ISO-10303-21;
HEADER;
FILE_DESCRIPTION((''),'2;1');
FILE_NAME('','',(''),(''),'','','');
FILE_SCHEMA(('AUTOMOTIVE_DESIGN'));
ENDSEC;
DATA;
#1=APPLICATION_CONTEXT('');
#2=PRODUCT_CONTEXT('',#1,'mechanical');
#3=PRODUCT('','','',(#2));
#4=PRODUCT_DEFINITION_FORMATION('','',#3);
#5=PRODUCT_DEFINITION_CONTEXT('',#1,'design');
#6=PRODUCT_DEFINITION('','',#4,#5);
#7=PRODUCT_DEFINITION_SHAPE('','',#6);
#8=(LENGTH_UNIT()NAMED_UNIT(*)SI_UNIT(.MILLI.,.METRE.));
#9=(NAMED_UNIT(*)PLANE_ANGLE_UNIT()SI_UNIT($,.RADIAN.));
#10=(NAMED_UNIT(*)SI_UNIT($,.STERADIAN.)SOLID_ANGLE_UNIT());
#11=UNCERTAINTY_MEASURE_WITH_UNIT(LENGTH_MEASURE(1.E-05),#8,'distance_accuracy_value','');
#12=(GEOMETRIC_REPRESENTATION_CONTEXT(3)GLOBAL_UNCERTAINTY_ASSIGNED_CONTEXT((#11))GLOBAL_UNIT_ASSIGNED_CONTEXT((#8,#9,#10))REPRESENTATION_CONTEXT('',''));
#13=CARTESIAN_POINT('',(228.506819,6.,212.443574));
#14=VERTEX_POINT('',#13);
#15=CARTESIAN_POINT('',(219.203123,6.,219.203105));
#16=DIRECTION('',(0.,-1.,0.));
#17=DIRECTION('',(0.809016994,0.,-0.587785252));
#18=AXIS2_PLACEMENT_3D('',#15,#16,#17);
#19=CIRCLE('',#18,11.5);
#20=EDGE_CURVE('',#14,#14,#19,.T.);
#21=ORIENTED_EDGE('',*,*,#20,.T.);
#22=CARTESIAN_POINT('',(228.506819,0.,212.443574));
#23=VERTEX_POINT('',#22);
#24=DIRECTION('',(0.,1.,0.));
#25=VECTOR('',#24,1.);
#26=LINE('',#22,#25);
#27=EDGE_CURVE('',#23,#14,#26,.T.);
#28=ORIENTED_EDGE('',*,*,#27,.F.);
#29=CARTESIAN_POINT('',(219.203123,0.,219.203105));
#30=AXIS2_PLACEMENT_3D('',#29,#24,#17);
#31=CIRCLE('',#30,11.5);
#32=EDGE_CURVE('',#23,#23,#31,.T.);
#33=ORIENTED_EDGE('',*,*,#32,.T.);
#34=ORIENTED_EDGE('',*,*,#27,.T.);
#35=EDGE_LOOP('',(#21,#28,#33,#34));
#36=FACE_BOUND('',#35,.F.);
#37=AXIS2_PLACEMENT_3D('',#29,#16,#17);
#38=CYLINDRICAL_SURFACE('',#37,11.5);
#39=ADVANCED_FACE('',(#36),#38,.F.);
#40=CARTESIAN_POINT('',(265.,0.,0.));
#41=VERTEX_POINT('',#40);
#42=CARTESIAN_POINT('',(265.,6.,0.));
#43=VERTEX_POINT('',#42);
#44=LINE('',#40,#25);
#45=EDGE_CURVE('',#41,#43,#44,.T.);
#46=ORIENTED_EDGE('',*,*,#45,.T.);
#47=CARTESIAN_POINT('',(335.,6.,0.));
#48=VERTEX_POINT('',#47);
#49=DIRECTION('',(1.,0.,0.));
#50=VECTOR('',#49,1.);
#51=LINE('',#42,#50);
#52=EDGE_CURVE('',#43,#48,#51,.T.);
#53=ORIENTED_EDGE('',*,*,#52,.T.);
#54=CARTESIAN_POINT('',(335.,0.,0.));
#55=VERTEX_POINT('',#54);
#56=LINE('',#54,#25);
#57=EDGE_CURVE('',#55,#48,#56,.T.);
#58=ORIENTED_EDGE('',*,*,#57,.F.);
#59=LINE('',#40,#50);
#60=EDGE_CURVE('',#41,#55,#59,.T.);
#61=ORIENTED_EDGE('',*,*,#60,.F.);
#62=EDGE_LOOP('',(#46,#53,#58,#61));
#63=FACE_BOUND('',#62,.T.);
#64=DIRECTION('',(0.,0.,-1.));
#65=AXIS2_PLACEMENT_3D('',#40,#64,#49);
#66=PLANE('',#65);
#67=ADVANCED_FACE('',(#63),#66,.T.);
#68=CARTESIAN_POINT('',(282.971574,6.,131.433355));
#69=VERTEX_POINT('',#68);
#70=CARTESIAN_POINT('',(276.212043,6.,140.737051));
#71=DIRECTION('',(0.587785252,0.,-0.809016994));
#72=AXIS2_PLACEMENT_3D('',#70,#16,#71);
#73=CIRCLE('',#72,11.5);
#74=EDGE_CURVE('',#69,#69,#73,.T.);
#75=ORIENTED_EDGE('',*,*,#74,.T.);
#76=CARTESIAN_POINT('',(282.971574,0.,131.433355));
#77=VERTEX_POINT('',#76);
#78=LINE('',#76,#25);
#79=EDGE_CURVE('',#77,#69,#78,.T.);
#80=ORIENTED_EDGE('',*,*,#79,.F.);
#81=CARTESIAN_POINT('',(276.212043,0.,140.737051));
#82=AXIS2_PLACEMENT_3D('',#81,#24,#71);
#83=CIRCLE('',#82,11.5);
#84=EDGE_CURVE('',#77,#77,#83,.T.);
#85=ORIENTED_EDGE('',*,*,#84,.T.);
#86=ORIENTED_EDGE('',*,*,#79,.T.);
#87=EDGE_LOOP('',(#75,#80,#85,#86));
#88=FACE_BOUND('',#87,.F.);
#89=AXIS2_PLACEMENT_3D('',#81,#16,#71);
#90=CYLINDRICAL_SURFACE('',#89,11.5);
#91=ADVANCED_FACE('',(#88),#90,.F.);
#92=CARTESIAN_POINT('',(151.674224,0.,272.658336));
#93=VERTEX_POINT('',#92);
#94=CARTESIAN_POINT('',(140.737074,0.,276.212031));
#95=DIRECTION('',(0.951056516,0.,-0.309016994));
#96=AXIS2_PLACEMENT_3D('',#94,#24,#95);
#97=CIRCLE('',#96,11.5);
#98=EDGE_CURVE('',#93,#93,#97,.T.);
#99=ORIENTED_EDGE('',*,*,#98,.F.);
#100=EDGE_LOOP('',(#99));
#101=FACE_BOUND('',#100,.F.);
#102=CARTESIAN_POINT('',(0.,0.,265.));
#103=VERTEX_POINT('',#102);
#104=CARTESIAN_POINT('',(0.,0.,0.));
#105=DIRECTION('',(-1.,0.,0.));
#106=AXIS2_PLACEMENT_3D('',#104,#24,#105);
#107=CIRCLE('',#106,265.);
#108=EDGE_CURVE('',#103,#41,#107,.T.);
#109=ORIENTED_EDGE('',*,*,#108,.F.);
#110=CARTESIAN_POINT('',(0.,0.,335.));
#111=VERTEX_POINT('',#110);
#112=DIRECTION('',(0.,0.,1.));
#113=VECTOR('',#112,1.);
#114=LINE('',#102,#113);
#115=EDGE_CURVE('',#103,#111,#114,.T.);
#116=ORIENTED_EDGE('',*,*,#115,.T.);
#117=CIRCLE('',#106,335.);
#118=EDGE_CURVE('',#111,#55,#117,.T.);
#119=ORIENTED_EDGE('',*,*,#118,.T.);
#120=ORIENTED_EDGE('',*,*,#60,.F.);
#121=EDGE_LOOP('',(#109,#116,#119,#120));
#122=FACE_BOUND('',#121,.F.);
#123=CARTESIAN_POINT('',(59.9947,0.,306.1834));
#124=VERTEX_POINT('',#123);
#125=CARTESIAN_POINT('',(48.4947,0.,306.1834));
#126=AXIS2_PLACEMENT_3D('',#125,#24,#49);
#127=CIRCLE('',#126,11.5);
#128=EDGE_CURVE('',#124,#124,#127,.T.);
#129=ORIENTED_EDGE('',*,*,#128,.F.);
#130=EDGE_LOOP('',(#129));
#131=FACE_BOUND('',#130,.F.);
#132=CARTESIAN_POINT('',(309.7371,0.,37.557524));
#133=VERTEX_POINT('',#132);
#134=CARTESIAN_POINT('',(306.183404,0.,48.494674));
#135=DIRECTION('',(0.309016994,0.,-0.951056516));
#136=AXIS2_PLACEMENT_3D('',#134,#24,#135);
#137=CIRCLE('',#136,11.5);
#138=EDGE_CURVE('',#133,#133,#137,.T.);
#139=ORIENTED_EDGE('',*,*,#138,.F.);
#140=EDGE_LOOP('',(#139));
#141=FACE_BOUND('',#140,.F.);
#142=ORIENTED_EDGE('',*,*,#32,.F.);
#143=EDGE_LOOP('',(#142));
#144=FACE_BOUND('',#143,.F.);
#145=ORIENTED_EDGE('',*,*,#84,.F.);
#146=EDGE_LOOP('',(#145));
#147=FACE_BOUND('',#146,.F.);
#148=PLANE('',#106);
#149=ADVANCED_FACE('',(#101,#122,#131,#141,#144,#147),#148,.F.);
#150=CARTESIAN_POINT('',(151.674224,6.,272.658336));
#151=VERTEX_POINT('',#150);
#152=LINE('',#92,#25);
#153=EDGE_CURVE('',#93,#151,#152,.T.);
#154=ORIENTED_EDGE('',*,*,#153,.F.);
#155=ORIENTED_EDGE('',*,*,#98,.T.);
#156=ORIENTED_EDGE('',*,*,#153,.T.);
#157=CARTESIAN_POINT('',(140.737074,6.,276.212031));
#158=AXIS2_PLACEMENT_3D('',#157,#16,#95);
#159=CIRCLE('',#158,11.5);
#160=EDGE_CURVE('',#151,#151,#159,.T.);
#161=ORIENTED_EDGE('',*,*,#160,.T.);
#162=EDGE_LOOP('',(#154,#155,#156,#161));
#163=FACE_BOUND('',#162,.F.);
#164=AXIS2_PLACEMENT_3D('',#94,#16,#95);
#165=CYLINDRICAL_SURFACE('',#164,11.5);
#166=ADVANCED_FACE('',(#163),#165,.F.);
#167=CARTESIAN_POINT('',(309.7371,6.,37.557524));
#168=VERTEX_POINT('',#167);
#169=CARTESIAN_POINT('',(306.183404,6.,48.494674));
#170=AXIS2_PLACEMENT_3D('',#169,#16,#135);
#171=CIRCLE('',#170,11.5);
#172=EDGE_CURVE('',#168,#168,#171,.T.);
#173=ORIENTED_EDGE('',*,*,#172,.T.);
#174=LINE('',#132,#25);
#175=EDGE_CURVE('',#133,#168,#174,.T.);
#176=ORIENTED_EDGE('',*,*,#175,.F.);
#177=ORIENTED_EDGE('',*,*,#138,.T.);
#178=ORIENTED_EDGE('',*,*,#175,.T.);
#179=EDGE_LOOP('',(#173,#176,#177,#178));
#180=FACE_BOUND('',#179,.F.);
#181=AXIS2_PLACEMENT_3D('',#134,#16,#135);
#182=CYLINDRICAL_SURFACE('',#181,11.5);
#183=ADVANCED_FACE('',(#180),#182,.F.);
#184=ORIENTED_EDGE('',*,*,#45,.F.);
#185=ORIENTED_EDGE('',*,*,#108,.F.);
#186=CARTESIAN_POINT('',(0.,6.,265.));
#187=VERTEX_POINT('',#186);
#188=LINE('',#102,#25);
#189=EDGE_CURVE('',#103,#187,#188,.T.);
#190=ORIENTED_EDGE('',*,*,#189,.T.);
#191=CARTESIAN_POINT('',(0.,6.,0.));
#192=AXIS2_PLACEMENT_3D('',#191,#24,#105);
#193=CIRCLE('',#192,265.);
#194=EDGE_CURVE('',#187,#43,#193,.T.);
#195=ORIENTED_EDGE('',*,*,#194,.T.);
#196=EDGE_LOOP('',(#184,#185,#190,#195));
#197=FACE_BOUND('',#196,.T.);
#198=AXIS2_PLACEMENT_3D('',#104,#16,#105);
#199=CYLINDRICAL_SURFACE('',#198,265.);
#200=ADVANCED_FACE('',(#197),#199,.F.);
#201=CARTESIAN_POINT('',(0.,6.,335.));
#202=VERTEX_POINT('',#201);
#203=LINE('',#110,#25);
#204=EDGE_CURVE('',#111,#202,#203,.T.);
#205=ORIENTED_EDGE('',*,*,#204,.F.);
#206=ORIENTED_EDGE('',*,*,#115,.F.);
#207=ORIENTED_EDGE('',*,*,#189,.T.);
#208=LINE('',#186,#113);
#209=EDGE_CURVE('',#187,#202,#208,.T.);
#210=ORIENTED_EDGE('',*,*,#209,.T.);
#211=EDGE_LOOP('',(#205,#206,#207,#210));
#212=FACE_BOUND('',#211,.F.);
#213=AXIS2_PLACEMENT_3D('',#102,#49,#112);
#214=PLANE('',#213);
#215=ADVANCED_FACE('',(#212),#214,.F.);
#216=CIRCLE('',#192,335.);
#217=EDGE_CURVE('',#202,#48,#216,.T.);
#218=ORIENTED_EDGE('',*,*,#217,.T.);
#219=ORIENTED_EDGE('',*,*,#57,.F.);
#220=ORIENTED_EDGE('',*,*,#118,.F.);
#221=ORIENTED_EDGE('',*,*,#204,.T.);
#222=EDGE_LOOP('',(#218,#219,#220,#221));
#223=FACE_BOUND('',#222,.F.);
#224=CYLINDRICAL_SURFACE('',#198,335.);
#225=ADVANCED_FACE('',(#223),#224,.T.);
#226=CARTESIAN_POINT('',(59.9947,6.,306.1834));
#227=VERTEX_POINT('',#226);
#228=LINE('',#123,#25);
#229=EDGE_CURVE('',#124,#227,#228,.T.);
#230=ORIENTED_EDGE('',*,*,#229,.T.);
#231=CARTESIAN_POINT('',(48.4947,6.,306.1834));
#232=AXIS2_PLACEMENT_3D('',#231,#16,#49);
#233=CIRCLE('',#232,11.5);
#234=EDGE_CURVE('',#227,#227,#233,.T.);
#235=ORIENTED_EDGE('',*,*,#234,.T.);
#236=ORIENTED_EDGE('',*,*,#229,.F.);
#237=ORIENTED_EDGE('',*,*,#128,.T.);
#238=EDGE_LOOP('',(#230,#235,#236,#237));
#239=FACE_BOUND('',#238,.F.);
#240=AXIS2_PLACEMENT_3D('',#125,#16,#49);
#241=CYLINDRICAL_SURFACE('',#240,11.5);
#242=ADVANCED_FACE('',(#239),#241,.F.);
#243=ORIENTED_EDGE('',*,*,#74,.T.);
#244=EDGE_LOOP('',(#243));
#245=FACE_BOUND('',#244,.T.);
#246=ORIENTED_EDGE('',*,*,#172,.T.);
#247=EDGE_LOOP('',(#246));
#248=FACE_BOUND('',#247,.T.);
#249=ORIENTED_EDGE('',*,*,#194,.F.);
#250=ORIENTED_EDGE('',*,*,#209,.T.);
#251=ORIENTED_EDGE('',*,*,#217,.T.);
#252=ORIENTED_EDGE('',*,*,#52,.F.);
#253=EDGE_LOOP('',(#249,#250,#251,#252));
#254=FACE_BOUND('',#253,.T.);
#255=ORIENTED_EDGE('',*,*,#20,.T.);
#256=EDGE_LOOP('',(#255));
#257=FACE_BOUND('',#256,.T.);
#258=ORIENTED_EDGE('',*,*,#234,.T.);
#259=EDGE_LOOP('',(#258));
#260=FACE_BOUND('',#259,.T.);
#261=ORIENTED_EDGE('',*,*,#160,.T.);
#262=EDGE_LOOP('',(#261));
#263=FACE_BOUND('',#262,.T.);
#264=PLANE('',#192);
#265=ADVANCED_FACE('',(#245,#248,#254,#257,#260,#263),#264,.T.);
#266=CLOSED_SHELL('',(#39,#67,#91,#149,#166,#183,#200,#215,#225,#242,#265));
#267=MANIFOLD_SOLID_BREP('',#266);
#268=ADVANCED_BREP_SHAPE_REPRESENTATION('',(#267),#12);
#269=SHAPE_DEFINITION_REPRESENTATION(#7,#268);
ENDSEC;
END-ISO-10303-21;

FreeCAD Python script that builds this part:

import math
import FreeCAD as App
import Part
import Sketcher
from FreeCAD import Vector
Q = App.Units.Quantity

doc = App.newDocument("Part")
body = doc.addObject("PartDesign::Body", "Body")

# Sketch on XZ plane
sketch1 = doc.addObject("Sketcher::SketchObject", "Sketch")
body.addObject(sketch1)
sketch1.AttachmentSupport = (doc.XZ_Plane, [""])
sketch1.MapMode = "FlatFace"
sketch1.addGeometry([
    Part.ArcOfCircle(Part.Circle(Vector(0, 0, 0), Vector(0, 0, 1), 265), math.radians(0), math.radians(90)),
    Part.LineSegment(Vector(0, 265, 0), Vector(0, 335, 0)),
    Part.ArcOfCircle(Part.Circle(Vector(0, 0, 0), Vector(0, 0, 1), 335), math.radians(0), math.radians(90)),
    Part.LineSegment(Vector(335, 0, 0), Vector(265, 0, 0)),
], False)
sketch1.addConstraint([
    Sketcher.Constraint("Coincident", 0, 2, 1, 1),
    Sketcher.Constraint("Coincident", 1, 2, 2, 2),
    Sketcher.Constraint("Coincident", 2, 1, 3, 1),
    Sketcher.Constraint("Coincident", 3, 2, 0, 1),
    Sketcher.Constraint("Vertical", 1),
    Sketcher.Constraint("Horizontal", 3),
    Sketcher.Constraint("Coincident", 0, 3, -1, 1),
    Sketcher.Constraint("Coincident", 2, 3, -1, 1),
    Sketcher.Constraint("PointOnObject", 0, 2, -2),
    Sketcher.Constraint("PointOnObject", 2, 1, -1),
    Sketcher.Constraint("Radius", 0, Q("265 mm")),
    Sketcher.Constraint("Radius", 2, Q("335 mm")),
])
pad1 = doc.addObject("PartDesign::Pad", "Pad")
body.addObject(pad1)
pad1.Profile = sketch1
pad1.Length = 6
pad1.Reversed = True

# Sketch on XZ plane
sketch2 = doc.addObject("Sketcher::SketchObject", "Sketch001")
body.addObject(sketch2)
sketch2.AttachmentSupport = (doc.XZ_Plane, [""])
sketch2.MapMode = "FlatFace"
sketch2.addGeometry(Part.Circle(Vector(48.4947, 306.1834, 0), Vector(0, 0, 1), 11.5), False)
sketch2.addConstraint([
    Sketcher.Constraint("Diameter", 0, Q("23 mm")),
    Sketcher.Constraint("DistanceX", -1, 1, 0, 3, Q("48.4947 mm")),
    Sketcher.Constraint("DistanceY", -1, 1, 0, 3, Q("306.1834 mm")),
])
pocket1 = doc.addObject("PartDesign::Pocket", "Pocket")
body.addObject(pocket1)
pocket1.Profile = sketch2
pocket1.Length = 6
doc.recompute()

polarpattern = doc.addObject("PartDesign::PolarPattern", "PolarPattern")
body.addObject(polarpattern)
polarpattern.Originals = [pocket1]
polarpattern.Axis = (doc.Y_Axis, [""])
polarpattern.Angle = 360
polarpattern.Occurrences = 20
body.Tip = polarpattern

doc.recompute()
